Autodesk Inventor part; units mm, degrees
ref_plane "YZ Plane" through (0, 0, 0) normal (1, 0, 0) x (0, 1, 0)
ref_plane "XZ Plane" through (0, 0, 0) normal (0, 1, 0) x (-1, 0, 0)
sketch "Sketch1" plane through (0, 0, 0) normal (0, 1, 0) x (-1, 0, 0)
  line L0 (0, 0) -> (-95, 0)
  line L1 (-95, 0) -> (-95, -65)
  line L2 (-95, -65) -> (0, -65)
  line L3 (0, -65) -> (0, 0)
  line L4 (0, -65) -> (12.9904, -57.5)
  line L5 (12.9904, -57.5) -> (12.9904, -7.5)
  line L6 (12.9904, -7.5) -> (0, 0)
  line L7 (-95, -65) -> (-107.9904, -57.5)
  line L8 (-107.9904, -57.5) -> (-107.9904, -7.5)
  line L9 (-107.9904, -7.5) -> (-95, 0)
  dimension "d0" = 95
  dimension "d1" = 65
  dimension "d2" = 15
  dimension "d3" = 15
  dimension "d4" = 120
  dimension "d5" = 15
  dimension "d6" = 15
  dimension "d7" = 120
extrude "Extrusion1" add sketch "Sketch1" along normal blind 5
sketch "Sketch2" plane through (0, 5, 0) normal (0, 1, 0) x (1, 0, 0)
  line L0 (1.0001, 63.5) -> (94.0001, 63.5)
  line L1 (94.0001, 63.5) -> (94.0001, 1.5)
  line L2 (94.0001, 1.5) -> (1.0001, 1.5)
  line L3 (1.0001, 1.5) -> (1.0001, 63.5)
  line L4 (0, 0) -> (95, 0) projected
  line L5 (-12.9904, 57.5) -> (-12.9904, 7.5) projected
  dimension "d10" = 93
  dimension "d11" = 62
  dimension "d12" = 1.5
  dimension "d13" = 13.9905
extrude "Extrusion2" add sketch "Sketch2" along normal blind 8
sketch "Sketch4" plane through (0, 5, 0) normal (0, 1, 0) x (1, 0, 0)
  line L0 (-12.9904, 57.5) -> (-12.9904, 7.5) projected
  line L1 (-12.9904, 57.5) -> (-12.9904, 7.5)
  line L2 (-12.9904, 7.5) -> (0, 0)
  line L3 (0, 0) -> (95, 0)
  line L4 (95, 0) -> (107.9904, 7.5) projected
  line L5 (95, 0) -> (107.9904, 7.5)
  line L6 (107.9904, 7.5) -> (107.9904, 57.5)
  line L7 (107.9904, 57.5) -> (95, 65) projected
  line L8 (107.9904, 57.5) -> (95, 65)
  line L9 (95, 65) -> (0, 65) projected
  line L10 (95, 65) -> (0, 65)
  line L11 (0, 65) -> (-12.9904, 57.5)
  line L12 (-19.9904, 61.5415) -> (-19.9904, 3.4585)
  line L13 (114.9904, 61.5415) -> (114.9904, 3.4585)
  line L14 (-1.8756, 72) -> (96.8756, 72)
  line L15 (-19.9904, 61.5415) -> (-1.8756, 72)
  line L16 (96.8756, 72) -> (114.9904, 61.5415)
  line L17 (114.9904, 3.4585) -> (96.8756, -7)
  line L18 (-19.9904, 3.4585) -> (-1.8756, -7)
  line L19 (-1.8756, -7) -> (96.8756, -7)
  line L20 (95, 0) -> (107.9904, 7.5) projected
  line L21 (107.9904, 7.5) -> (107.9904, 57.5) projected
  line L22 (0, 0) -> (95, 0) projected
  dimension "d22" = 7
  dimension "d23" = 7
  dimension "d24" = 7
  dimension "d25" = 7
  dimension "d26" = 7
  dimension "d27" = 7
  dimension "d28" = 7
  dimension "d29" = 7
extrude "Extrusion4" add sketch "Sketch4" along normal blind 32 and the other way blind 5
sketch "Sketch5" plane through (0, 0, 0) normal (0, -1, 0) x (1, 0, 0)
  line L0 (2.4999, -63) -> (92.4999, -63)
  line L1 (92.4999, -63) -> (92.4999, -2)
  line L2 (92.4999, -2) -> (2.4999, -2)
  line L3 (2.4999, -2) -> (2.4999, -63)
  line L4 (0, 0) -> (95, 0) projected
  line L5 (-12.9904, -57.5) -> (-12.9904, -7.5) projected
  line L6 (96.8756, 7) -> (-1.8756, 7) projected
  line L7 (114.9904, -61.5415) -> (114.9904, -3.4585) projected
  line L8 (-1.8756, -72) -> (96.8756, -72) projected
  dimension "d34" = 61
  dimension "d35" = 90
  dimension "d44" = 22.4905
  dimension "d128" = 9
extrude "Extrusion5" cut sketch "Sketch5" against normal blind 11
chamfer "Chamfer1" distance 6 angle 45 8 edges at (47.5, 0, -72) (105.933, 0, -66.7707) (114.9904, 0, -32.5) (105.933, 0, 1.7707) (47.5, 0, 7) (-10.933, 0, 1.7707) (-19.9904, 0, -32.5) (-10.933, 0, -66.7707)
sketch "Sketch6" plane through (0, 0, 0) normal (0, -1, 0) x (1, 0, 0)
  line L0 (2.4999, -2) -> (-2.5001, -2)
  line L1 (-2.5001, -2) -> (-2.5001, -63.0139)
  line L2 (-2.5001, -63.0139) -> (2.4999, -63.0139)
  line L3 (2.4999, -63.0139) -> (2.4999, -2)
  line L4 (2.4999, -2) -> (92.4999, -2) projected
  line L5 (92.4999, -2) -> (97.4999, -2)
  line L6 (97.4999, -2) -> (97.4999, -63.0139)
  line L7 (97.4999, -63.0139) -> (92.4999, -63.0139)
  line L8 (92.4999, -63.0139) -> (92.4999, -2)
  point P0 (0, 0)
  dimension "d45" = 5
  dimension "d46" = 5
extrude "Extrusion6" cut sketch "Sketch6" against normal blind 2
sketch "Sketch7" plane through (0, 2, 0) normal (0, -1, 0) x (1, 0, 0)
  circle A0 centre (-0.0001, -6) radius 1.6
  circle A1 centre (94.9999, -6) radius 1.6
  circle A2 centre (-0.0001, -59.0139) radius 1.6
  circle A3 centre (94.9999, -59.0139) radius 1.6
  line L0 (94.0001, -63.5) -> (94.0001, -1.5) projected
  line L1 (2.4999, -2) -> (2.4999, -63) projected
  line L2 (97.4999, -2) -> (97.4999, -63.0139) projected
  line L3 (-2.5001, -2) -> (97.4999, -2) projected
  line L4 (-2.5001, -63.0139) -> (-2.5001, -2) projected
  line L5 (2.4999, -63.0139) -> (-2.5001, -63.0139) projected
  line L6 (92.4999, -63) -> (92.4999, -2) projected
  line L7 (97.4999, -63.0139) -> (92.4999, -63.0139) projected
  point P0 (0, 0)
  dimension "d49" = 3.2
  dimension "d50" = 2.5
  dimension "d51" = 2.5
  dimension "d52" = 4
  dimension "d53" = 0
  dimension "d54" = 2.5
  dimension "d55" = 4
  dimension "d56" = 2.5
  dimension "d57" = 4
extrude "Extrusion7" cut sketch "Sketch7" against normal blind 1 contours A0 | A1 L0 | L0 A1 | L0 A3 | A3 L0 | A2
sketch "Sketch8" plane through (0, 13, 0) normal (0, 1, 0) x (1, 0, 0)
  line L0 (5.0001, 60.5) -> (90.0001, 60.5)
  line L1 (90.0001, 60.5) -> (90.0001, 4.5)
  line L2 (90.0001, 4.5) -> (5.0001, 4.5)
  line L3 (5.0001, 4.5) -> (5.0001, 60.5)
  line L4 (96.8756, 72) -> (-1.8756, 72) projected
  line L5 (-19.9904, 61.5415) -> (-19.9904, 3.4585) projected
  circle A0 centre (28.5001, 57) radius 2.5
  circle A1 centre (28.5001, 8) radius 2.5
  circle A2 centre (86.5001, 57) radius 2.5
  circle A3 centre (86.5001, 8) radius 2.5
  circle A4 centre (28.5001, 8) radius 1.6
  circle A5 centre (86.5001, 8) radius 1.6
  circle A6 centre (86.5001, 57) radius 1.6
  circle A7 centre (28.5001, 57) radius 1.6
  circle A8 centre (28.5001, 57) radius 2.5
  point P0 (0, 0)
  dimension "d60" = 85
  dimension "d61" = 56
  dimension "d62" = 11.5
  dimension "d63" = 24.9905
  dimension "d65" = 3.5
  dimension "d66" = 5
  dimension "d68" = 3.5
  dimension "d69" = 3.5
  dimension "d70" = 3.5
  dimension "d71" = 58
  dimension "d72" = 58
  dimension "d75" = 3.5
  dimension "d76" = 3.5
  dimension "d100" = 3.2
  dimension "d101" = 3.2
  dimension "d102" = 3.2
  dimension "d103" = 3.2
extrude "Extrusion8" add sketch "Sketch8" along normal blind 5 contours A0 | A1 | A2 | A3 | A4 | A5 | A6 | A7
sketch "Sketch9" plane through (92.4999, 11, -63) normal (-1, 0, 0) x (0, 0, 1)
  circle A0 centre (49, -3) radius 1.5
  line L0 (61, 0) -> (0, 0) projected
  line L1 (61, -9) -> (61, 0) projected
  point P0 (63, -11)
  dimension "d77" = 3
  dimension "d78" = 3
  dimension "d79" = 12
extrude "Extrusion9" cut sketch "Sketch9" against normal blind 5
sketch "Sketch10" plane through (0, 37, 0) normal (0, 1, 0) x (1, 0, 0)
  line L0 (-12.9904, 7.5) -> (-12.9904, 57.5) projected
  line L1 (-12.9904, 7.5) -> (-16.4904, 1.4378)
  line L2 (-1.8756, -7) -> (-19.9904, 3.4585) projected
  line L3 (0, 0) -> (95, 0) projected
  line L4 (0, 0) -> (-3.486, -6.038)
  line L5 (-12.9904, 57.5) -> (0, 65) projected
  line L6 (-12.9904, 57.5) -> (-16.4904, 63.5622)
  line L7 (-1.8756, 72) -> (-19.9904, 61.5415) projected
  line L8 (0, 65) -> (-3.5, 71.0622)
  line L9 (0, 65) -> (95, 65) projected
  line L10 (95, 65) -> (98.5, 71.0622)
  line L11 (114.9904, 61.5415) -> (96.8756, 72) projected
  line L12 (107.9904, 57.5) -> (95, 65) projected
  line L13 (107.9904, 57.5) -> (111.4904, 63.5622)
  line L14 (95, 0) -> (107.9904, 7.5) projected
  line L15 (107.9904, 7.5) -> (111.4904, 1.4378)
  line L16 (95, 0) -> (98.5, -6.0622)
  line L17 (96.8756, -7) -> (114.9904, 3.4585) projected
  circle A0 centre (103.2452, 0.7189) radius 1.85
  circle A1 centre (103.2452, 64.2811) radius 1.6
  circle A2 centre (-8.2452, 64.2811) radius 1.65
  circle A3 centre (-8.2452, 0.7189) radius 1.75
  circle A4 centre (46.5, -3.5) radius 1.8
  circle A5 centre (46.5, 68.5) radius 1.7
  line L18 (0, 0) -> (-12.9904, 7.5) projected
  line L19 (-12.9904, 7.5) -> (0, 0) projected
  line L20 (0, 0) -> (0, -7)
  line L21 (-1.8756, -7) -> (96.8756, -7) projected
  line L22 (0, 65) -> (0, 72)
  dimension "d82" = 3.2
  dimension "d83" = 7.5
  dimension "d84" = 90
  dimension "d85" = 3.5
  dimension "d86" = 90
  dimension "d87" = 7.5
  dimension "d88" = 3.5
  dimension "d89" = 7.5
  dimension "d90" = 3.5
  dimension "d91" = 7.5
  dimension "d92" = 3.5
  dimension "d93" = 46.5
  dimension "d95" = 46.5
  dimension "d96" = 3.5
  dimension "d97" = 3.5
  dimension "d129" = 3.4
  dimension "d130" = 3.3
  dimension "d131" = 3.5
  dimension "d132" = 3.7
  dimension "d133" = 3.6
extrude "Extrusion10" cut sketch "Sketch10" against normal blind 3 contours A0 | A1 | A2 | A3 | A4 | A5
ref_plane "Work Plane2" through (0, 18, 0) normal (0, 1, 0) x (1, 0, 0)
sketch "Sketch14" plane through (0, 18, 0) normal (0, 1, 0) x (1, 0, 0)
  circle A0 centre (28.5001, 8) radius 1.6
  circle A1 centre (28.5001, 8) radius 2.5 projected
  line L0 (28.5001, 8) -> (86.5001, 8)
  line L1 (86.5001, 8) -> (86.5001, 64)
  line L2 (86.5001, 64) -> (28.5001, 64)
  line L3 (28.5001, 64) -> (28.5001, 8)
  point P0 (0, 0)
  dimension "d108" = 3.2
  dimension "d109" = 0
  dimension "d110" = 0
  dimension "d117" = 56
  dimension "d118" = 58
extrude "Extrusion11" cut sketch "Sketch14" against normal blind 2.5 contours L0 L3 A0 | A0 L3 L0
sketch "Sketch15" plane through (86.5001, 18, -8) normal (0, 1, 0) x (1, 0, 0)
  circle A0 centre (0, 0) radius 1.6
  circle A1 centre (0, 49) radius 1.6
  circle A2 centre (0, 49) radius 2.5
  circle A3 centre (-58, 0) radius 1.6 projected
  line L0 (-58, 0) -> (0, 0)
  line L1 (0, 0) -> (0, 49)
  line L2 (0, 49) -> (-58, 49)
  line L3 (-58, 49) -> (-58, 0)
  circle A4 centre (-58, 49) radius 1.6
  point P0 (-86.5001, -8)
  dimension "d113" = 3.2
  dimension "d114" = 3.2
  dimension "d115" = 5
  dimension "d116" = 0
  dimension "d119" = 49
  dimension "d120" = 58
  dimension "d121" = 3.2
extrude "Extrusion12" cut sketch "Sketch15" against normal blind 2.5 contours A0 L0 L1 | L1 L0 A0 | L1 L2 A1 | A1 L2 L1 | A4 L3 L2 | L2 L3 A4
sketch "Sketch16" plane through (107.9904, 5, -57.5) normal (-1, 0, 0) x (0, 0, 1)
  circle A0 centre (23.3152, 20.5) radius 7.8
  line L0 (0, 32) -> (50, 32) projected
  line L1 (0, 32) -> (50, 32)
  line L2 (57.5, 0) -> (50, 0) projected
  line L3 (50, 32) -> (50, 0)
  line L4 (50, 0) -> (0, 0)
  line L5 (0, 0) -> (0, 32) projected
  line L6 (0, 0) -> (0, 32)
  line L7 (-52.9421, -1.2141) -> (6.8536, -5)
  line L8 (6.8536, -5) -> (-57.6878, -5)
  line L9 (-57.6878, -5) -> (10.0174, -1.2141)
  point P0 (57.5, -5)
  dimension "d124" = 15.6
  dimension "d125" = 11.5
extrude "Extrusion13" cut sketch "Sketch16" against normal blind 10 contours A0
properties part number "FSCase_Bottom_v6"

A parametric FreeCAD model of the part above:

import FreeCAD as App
import Part
import Sketcher
from FreeCAD import Vector
Q = App.Units.Quantity


def edges_at(feature, points):
    """Names of the edges that pass closest to the given points."""
    edges = feature.Shape.Edges
    near = lambda p: min(range(len(edges)), key=lambda i: edges[i].distToShape(Part.Vertex(*p))[0])
    return sorted({f"Edge{near(p) + 1}" for p in points})

doc = App.newDocument("Part")
params = doc.addObject("Spreadsheet::Sheet", "Params")
for row, (alias, value) in enumerate([
    ("sketch1_width", "95 mm"),
    ("sketch1_length", "15 mm"),
    ("sketch1_height", "50 mm"),
    ("pad1_length", "5 mm"),
    ("sketch2_width", "93 mm"),
    ("sketch2_height", "62 mm"),
    ("pad2_length", "8 mm"),
    ("sketch3_width", "95 mm"),
    ("sketch3_height", "50 mm"),
    ("sketch3_length", "15 mm"),
    ("pad3_length", "32 mm"),
    ("pad3_length2", "5 mm"),
    ("sketch4_width", "90 mm"),
    ("sketch4_height", "61 mm"),
    ("pocket1_length", "11 mm"),
    ("chamfer_size", "6 mm"),
    ("sketch5_width", "5 mm"),
    ("pocket2_length", "2 mm"),
    ("sketch6_diameter", "3.2 mm"),
    ("pocket3_length", "1 mm"),
    ("sketch7_diameter", "5 mm"),
    ("pad4_length", "5 mm"),
    ("sketch8_diameter", "3 mm"),
    ("pocket4_length", "5 mm"),
    ("sketch9_diameter", "3.7 mm"),
    ("sketch9_diameter2", "3.2 mm"),
    ("sketch9_diameter3", "3.3 mm"),
    ("sketch9_diameter4", "3.5 mm"),
    ("sketch9_diameter5", "3.6 mm"),
    ("pocket5_length", "3 mm"),
    ("sketch10_diameter", "3.2 mm"),
    ("pocket6_length", "2.5 mm"),
    ("sketch11_diameter", "3.2 mm"),
    ("pocket7_length", "2.5 mm"),
    ("sketch12_diameter", "15.6 mm"),
    ("pocket8_length", "10 mm"),
], start=1):
    params.set(f"A{row}", alias)
    params.set(f"B{row}", "=" + value)
    params.setAlias(f"B{row}", alias)

body = doc.addObject("PartDesign::Body", "Body")

# Sketch on XZ plane
sketch1 = body.newObject("Sketcher::SketchObject", "Sketch")
sketch1.AttachmentSupport = (doc.getObject("XZ_Plane"), [""])
sketch1.MapMode = "FlatFace"
sketch1.addGeometry(Part.LineSegment(Vector(95, -65, 0), Vector(0, -65, 0)), False)
sketch1.addGeometry(Part.LineSegment(Vector(0, -65, 0), Vector(-13, -58, 0)), False)
sketch1.addGeometry(Part.LineSegment(Vector(-13, -58, 0), Vector(-13, -8, 0)), False)
sketch1.addGeometry(Part.LineSegment(Vector(-13, -8, 0), Vector(0, 0, 0)), False)
sketch1.addGeometry(Part.LineSegment(Vector(0, 0, 0), Vector(95, 0, 0)), False)
sketch1.addGeometry(Part.LineSegment(Vector(95, 0, 0), Vector(108, -8, 0)), False)
sketch1.addGeometry(Part.LineSegment(Vector(108, -8, 0), Vector(108, -58, 0)), False)
sketch1.addGeometry(Part.LineSegment(Vector(108, -58, 0), Vector(95, -65, 0)), False)
sketch1.addConstraint(Sketcher.Constraint("Coincident", 0, 2, 1, 1))
sketch1.addConstraint(Sketcher.Constraint("Coincident", 1, 2, 2, 1))
sketch1.addConstraint(Sketcher.Constraint("Coincident", 2, 2, 3, 1))
sketch1.addConstraint(Sketcher.Constraint("Coincident", 3, 2, 4, 1))
sketch1.addConstraint(Sketcher.Constraint("Coincident", 4, 2, 5, 1))
sketch1.addConstraint(Sketcher.Constraint("Coincident", 5, 2, 6, 1))
sketch1.addConstraint(Sketcher.Constraint("Coincident", 6, 2, 7, 1))
sketch1.addConstraint(Sketcher.Constraint("Coincident", 7, 2, 0, 1))
sketch1.addConstraint(Sketcher.Constraint("Horizontal", 0))
sketch1.addConstraint(Sketcher.Constraint("Vertical", 2))
sketch1.addConstraint(Sketcher.Constraint("Horizontal", 4))
sketch1.addConstraint(Sketcher.Constraint("Vertical", 6))
sketch1.addConstraint(Sketcher.Constraint("Coincident", 3, 2, -1, 1))
sketch1.addConstraint(Sketcher.Constraint("PointOnObject", 0, 2, -2))
sketch1.addConstraint(Sketcher.Constraint("Parallel", 1, 5))
sketch1.addConstraint(Sketcher.Constraint("Parallel", 3, 7))
sketch1.addConstraint(Sketcher.Constraint("Horizontal", 2, 2, 5, 2))
sketch1.addConstraint(Sketcher.Constraint("Horizontal", 1, 2, 6, 2))
sketch1.addConstraint(Sketcher.Constraint("Vertical", 4, 2, 7, 2))
sketch1.addConstraint(Sketcher.Constraint("DistanceX", 0, 2, 0, 1, 95.0))
sketch1.addConstraint(Sketcher.Constraint("Distance", 1, 15.0))
sketch1.addConstraint(Sketcher.Constraint("DistanceY", 0, 2, -1, 1, 65.0))
sketch1.addConstraint(Sketcher.Constraint("DistanceY", 2, 1, 2, 2, 50.0))
sketch1.setExpression("Constraints[19]", "Params.sketch1_width")
sketch1.setExpression("Constraints[20]", "Params.sketch1_length")
sketch1.setExpression("Constraints[22]", "Params.sketch1_height")
pad1 = body.newObject("PartDesign::Pad", "Pad")
pad1.Profile = sketch1
pad1.setExpression("Length", "Params.pad1_length")
pad1.Reversed = True

# Sketch on XZ plane
sketch2 = body.newObject("Sketcher::SketchObject", "Sketch001")
sketch2.AttachmentSupport = (doc.getObject("XZ_Plane"), [""])
sketch2.MapMode = "FlatFace"
sketch2.AttachmentOffset = App.Placement(Vector(0, 0, -5), App.Rotation())
sketch2.addGeometry(Part.LineSegment(Vector(94, -64, 0), Vector(1, -64, 0)), False)
sketch2.addGeometry(Part.LineSegment(Vector(1, -64, 0), Vector(1, -2, 0)), False)
sketch2.addGeometry(Part.LineSegment(Vector(1, -2, 0), Vector(94, -2, 0)), False)
sketch2.addGeometry(Part.LineSegment(Vector(94, -2, 0), Vector(94, -64, 0)), False)
sketch2.addConstraint(Sketcher.Constraint("Coincident", 0, 2, 1, 1))
sketch2.addConstraint(Sketcher.Constraint("Coincident", 1, 2, 2, 1))
sketch2.addConstraint(Sketcher.Constraint("Coincident", 2, 2, 3, 1))
sketch2.addConstraint(Sketcher.Constraint("Coincident", 3, 2, 0, 1))
sketch2.addConstraint(Sketcher.Constraint("Horizontal", 0))
sketch2.addConstraint(Sketcher.Constraint("Vertical", 1))
sketch2.addConstraint(Sketcher.Constraint("Horizontal", 2))
sketch2.addConstraint(Sketcher.Constraint("Vertical", 3))
sketch2.addConstraint(Sketcher.Constraint("DistanceX", 0, 2, 0, 1, 93.0))
sketch2.addConstraint(Sketcher.Constraint("DistanceY", 1, 1, 1, 2, 62.0))
sketch2.addConstraint(Sketcher.Constraint("DistanceY", 1, 2, -1, 1, 1.5))
sketch2.addConstraint(Sketcher.Constraint("DistanceX", -1, 1, 0, 2, 1.0))
sketch2.setExpression("Constraints[8]", "Params.sketch2_width")
sketch2.setExpression("Constraints[9]", "Params.sketch2_height")
pad2 = body.newObject("PartDesign::Pad", "Pad001")
pad2.Profile = sketch2
pad2.setExpression("Length", "Params.pad2_length")
pad2.Reversed = True

# Sketch on XZ plane
sketch3 = body.newObject("Sketcher::SketchObject", "Sketch002")
sketch3.AttachmentSupport = (doc.getObject("XZ_Plane"), [""])
sketch3.MapMode = "FlatFace"
sketch3.AttachmentOffset = App.Placement(Vector(0, 0, -5), App.Rotation())
sketch3.addGeometry(Part.LineSegment(Vector(-2, -72, 0), Vector(-20, -62, 0)), False)
sketch3.addGeometry(Part.LineSegment(Vector(-20, -62, 0), Vector(-20, -3, 0)), False)
sketch3.addGeometry(Part.LineSegment(Vector(-20, -3, 0), Vector(-2, 7, 0)), False)
sketch3.addGeometry(Part.LineSegment(Vector(-2, 7, 0), Vector(97, 7, 0)), False)
sketch3.addGeometry(Part.LineSegment(Vector(97, 7, 0), Vector(115, -3, 0)), False)
sketch3.addGeometry(Part.LineSegment(Vector(115, -3, 0), Vector(115, -62, 0)), False)
sketch3.addGeometry(Part.LineSegment(Vector(115, -62, 0), Vector(97, -72, 0)), False)
sketch3.addGeometry(Part.LineSegment(Vector(97, -72, 0), Vector(-2, -72, 0)), False)
sketch3.addGeometry(Part.LineSegment(Vector(-13, -8, 0), Vector(-13, -58, 0)), False)
sketch3.addGeometry(Part.LineSegment(Vector(-13, -58, 0), Vector(0, -65, 0)), False)
sketch3.addGeometry(Part.LineSegment(Vector(0, -65, 0), Vector(95, -65, 0)), False)
sketch3.addGeometry(Part.LineSegment(Vector(95, -65, 0), Vector(108, -58, 0)), False)
sketch3.addGeometry(Part.LineSegment(Vector(108, -58, 0), Vector(108, -8, 0)), False)
sketch3.addGeometry(Part.LineSegment(Vector(108, -8, 0), Vector(95, 0, 0)), False)
sketch3.addGeometry(Part.LineSegment(Vector(95, 0, 0), Vector(0, 0, 0)), False)
sketch3.addGeometry(Part.LineSegment(Vector(0, 0, 0), Vector(-13, -8, 0)), False)
sketch3.addConstraint(Sketcher.Constraint("Coincident", 0, 2, 1, 1))
sketch3.addConstraint(Sketcher.Constraint("Coincident", 1, 2, 2, 1))
sketch3.addConstraint(Sketcher.Constraint("Coincident", 2, 2, 3, 1))
sketch3.addConstraint(Sketcher.Constraint("Coincident", 3, 2, 4, 1))
sketch3.addConstraint(Sketcher.Constraint("Coincident", 4, 2, 5, 1))
sketch3.addConstraint(Sketcher.Constraint("Coincident", 5, 2, 6, 1))
sketch3.addConstraint(Sketcher.Constraint("Coincident", 6, 2, 7, 1))
sketch3.addConstraint(Sketcher.Constraint("Coincident", 7, 2, 0, 1))
sketch3.addConstraint(Sketcher.Constraint("Coincident", 8, 2, 9, 1))
sketch3.addConstraint(Sketcher.Constraint("Coincident", 9, 2, 10, 1))
sketch3.addConstraint(Sketcher.Constraint("Coincident", 10, 2, 11, 1))
sketch3.addConstraint(Sketcher.Constraint("Coincident", 11, 2, 12, 1))
sketch3.addConstraint(Sketcher.Constraint("Coincident", 12, 2, 13, 1))
sketch3.addConstraint(Sketcher.Constraint("Coincident", 13, 2, 14, 1))
sketch3.addConstraint(Sketcher.Constraint("Coincident", 14, 2, 15, 1))
sketch3.addConstraint(Sketcher.Constraint("Coincident", 15, 2, 8, 1))
sketch3.addConstraint(Sketcher.Constraint("Vertical", 1))
sketch3.addConstraint(Sketcher.Constraint("Horizontal", 3))
sketch3.addConstraint(Sketcher.Constraint("Vertical", 5))
sketch3.addConstraint(Sketcher.Constraint("Horizontal", 7))
sketch3.addConstraint(Sketcher.Constraint("Vertical", 8))
sketch3.addConstraint(Sketcher.Constraint("Horizontal", 10))
sketch3.addConstraint(Sketcher.Constraint("Vertical", 12))
sketch3.addConstraint(Sketcher.Constraint("Horizontal", 14))
sketch3.addConstraint(Sketcher.Constraint("Coincident", 14, 2, -1, 1))
sketch3.addConstraint(Sketcher.Constraint("PointOnObject", 9, 2, -2))
sketch3.addConstraint(Sketcher.Constraint("Parallel", 0, 4))
sketch3.addConstraint(Sketcher.Constraint("Parallel", 2, 6))
sketch3.addConstraint(Sketcher.Constraint("Parallel", 4, 9))
sketch3.addConstraint(Sketcher.Constraint("Parallel", 6, 11))
sketch3.addConstraint(Sketcher.Constraint("Parallel", 9, 13))
sketch3.addConstraint(Sketcher.Constraint("Parallel", 11, 15))
sketch3.addConstraint(Sketcher.Constraint("Horizontal", 1, 2, 4, 2))
sketch3.addConstraint(Sketcher.Constraint("Horizontal", 0, 2, 5, 2))
sketch3.addConstraint(Sketcher.Constraint("Horizontal", 8, 2, 11, 2))
sketch3.addConstraint(Sketcher.Constraint("Horizontal", 12, 2, 15, 2))
sketch3.addConstraint(Sketcher.Constraint("Vertical", 3, 2, 6, 2))
sketch3.addConstraint(Sketcher.Constraint("Vertical", 2, 2, 7, 2))
sketch3.addConstraint(Sketcher.Constraint("DistanceY", -1, 1, 2, 2, 7.0))
sketch3.addConstraint(Sketcher.Constraint("DistanceX", 0, 2, 8, 2, 7.0))
sketch3.addConstraint(Sketcher.Constraint("DistanceY", 7, 2, 9, 2, 7.0))
sketch3.addConstraint(Sketcher.Constraint("DistanceX", 11, 2, 5, 2, 7.0))
sketch3.addConstraint(Sketcher.Constraint("DistanceX", 10, 1, 10, 2, 95.0))
sketch3.addConstraint(Sketcher.Constraint("DistanceY", 8, 2, 8, 1, 50.0))
sketch3.addConstraint(Sketcher.Constraint("Angle", 0, Q("150.0002 deg")))
sketch3.addConstraint(Sketcher.Constraint("Distance", 9, 15.0))
sketch3.addConstraint(Sketcher.Constraint("DistanceY", 1, 1, 1, 2, 58.083))
sketch3.setExpression("Constraints[42]", "Params.sketch3_width")
sketch3.setExpression("Constraints[43]", "Params.sketch3_height")
sketch3.setExpression("Constraints[45]", "Params.sketch3_length")
pad3 = body.newObject("PartDesign::Pad", "Pad002")
pad3.Profile = sketch3
pad3.Type = "TwoLengths"
pad3.setExpression("Length", "Params.pad3_length")
pad3.setExpression("Length2", "Params.pad3_length2")
pad3.Reversed = True

# Sketch on XZ plane
sketch4 = body.newObject("Sketcher::SketchObject", "Sketch003")
sketch4.AttachmentSupport = (doc.getObject("XZ_Plane"), [""])
sketch4.MapMode = "FlatFace"
sketch4.addGeometry(Part.LineSegment(Vector(2, -2, 0), Vector(2, -63, 0)), False)
sketch4.addGeometry(Part.LineSegment(Vector(2, -63, 0), Vector(92, -63, 0)), False)
sketch4.addGeometry(Part.LineSegment(Vector(92, -63, 0), Vector(92, -2, 0)), False)
sketch4.addGeometry(Part.LineSegment(Vector(92, -2, 0), Vector(2, -2, 0)), False)
sketch4.addConstraint(Sketcher.Constraint("Coincident", 0, 2, 1, 1))
sketch4.addConstraint(Sketcher.Constraint("Coincident", 1, 2, 2, 1))
sketch4.addConstraint(Sketcher.Constraint("Coincident", 2, 2, 3, 1))
sketch4.addConstraint(Sketcher.Constraint("Coincident", 3, 2, 0, 1))
sketch4.addConstraint(Sketcher.Constraint("Vertical", 0))
sketch4.addConstraint(Sketcher.Constraint("Horizontal", 1))
sketch4.addConstraint(Sketcher.Constraint("Vertical", 2))
sketch4.addConstraint(Sketcher.Constraint("Horizontal", 3))
sketch4.addConstraint(Sketcher.Constraint("DistanceX", 1, 1, 1, 2, 90.0))
sketch4.addConstraint(Sketcher.Constraint("DistanceY", 0, 2, 0, 1, 61.0))
sketch4.addConstraint(Sketcher.Constraint("DistanceY", 0, 2, -1, 1, 63.0))
sketch4.addConstraint(Sketcher.Constraint("DistanceX", -1, 1, 0, 2, 2.5))
sketch4.setExpression("Constraints[8]", "Params.sketch4_width")
sketch4.setExpression("Constraints[9]", "Params.sketch4_height")
pocket1 = body.newObject("PartDesign::Pocket", "Pocket")
pocket1.Profile = sketch4
pocket1.setExpression("Length", "Params.pocket1_length")
doc.recompute()

chamfer = body.newObject("PartDesign::Chamfer", "Chamfer")
chamfer.Base = (pocket1, edges_at(pocket1, [
    (47.5, 0, -72),
    (105.933, 0, -66.771),
    (114.99, 0, -32.5),
    (105.933, 0, 1.771),
    (47.5, 0, 7),
    (-10.933, 0, 1.771),
    (-19.99, 0, -32.5),
    (-10.933, 0, -66.771),
]))
chamfer.setExpression("Size", "Params.chamfer_size")

# Sketch on XZ plane
sketch5 = body.newObject("Sketcher::SketchObject", "Sketch004")
sketch5.AttachmentSupport = (doc.getObject("XZ_Plane"), [""])
sketch5.MapMode = "FlatFace"
sketch5.addGeometry(Part.LineSegment(Vector(2, -63, 0), Vector(2, -2, 0)), False)
sketch5.addGeometry(Part.LineSegment(Vector(2, -2, 0), Vector(-3, -2, 0)), False)
sketch5.addGeometry(Part.LineSegment(Vector(-3, -2, 0), Vector(-3, -63, 0)), False)
sketch5.addGeometry(Part.LineSegment(Vector(-3, -63, 0), Vector(2, -63, 0)), False)
sketch5.addGeometry(Part.LineSegment(Vector(97, -2, 0), Vector(92, -2, 0)), False)
sketch5.addGeometry(Part.LineSegment(Vector(92, -2, 0), Vector(92, -63, 0)), False)
sketch5.addGeometry(Part.LineSegment(Vector(92, -63, 0), Vector(97, -63, 0)), False)
sketch5.addGeometry(Part.LineSegment(Vector(97, -63, 0), Vector(97, -2, 0)), False)
sketch5.addConstraint(Sketcher.Constraint("Coincident", 0, 2, 1, 1))
sketch5.addConstraint(Sketcher.Constraint("Coincident", 1, 2, 2, 1))
sketch5.addConstraint(Sketcher.Constraint("Coincident", 2, 2, 3, 1))
sketch5.addConstraint(Sketcher.Constraint("Coincident", 3, 2, 0, 1))
sketch5.addConstraint(Sketcher.Constraint("Coincident", 4, 2, 5, 1))
sketch5.addConstraint(Sketcher.Constraint("Coincident", 5, 2, 6, 1))
sketch5.addConstraint(Sketcher.Constraint("Coincident", 6, 2, 7, 1))
sketch5.addConstraint(Sketcher.Constraint("Coincident", 7, 2, 4, 1))
sketch5.addConstraint(Sketcher.Constraint("Vertical", 0))
sketch5.addConstraint(Sketcher.Constraint("Horizontal", 1))
sketch5.addConstraint(Sketcher.Constraint("Vertical", 2))
sketch5.addConstraint(Sketcher.Constraint("Horizontal", 3))
sketch5.addConstraint(Sketcher.Constraint("Horizontal", 4))
sketch5.addConstraint(Sketcher.Constraint("Vertical", 5))
sketch5.addConstraint(Sketcher.Constraint("Horizontal", 6))
sketch5.addConstraint(Sketcher.Constraint("Vertical", 7))
sketch5.addConstraint(Sketcher.Constraint("Horizontal", 1, 2, 4, 2))
sketch5.addConstraint(Sketcher.Constraint("Horizontal", 3, 2, 5, 2))
sketch5.addConstraint(Sketcher.Constraint("Equal", 3, 4))
sketch5.addConstraint(Sketcher.Constraint("DistanceX", 1, 2, 1, 1, 5.0))
sketch5.addConstraint(Sketcher.Constraint("DistanceY", 0, 2, -1, 1, 2.0))
sketch5.addConstraint(Sketcher.Constraint("DistanceX", 0, 2, 4, 2, 90.0))
sketch5.addConstraint(Sketcher.Constraint("DistanceX", -1, 1, 0, 2, 2.5))
sketch5.addConstraint(Sketcher.Constraint("DistanceY", 0, 1, 0, 2, 61.014))
sketch5.setExpression("Constraints[19]", "Params.sketch5_width")
pocket2 = body.newObject("PartDesign::Pocket", "Pocket001")
pocket2.Profile = sketch5
pocket2.setExpression("Length", "Params.pocket2_length")

# Sketch on XZ plane
sketch6 = body.newObject("Sketcher::SketchObject", "Sketch005")
sketch6.AttachmentSupport = (doc.getObject("XZ_Plane"), [""])
sketch6.MapMode = "FlatFace"
sketch6.AttachmentOffset = App.Placement(Vector(0, 0, -2), App.Rotation())
sketch6.addGeometry(Part.Circle(Vector(0, -6, 0), Vector(0, 0, 1), 1.6), False)
sketch6.addGeometry(Part.Circle(Vector(95, -6, 0), Vector(0, 0, 1), 1.6), False)
sketch6.addGeometry(Part.Circle(Vector(95, -59, 0), Vector(0, 0, 1), 1.6), False)
sketch6.addGeometry(Part.Circle(Vector(0, -59, 0), Vector(0, 0, 1), 1.6), False)
sketch6.addConstraint(Sketcher.Constraint("Equal", 0, 1))
sketch6.addConstraint(Sketcher.Constraint("Equal", 1, 2))
sketch6.addConstraint(Sketcher.Constraint("Equal", 2, 3))
sketch6.addConstraint(Sketcher.Constraint("PointOnObject", 0, 3, -2))
sketch6.addConstraint(Sketcher.Constraint("PointOnObject", 3, 3, -2))
sketch6.addConstraint(Sketcher.Constraint("Horizontal", 0, 3, 1, 3))
sketch6.addConstraint(Sketcher.Constraint("Horizontal", 2, 3, 3, 3))
sketch6.addConstraint(Sketcher.Constraint("Vertical", 1, 3, 2, 3))
sketch6.addConstraint(Sketcher.Constraint("Diameter", 0, 3.2))
sketch6.addConstraint(Sketcher.Constraint("DistanceY", 0, 3, -1, 1, 6.0))
sketch6.addConstraint(Sketcher.Constraint("DistanceX", -1, 1, 1, 3, 95.0))
sketch6.addConstraint(Sketcher.Constraint("DistanceY", 2, 3, -1, 1, 59.014))
sketch6.setExpression("Constraints[8]", "Params.sketch6_diameter")
pocket3 = body.newObject("PartDesign::Pocket", "Pocket002")
pocket3.Profile = sketch6
pocket3.setExpression("Length", "Params.pocket3_length")

# Sketch on XZ plane
sketch7 = body.newObject("Sketcher::SketchObject", "Sketch006")
sketch7.AttachmentSupport = (doc.getObject("XZ_Plane"), [""])
sketch7.MapMode = "FlatFace"
sketch7.AttachmentOffset = App.Placement(Vector(0, 0, -13), App.Rotation())
sketch7.addGeometry(Part.Circle(Vector(28.5, -57, 0), Vector(0, 0, 1), 2.5), False)
sketch7.addGeometry(Part.Circle(Vector(28.5, -8, 0), Vector(0, 0, 1), 2.5), False)
sketch7.addGeometry(Part.Circle(Vector(86.5, -57, 0), Vector(0, 0, 1), 2.5), False)
sketch7.addGeometry(Part.Circle(Vector(86.5, -8, 0), Vector(0, 0, 1), 2.5), False)
sketch7.addConstraint(Sketcher.Constraint("Equal", 0, 1))
sketch7.addConstraint(Sketcher.Constraint("Equal", 1, 2))
sketch7.addConstraint(Sketcher.Constraint("Equal", 2, 3))
sketch7.addConstraint(Sketcher.Constraint("Horizontal", 0, 3, 2, 3))
sketch7.addConstraint(Sketcher.Constraint("Horizontal", 1, 3, 3, 3))
sketch7.addConstraint(Sketcher.Constraint("Vertical", 0, 3, 1, 3))
sketch7.addConstraint(Sketcher.Constraint("Vertical", 2, 3, 3, 3))
sketch7.addConstraint(Sketcher.Constraint("Diameter", 0, 5.0))
sketch7.addConstraint(Sketcher.Constraint("DistanceX", 0, 3, 2, 3, 58.0))
sketch7.addConstraint(Sketcher.Constraint("DistanceY", 0, 3, -1, 1, 57.0))
sketch7.addConstraint(Sketcher.Constraint("DistanceY", 1, 3, -1, 1, 8.0))
sketch7.addConstraint(Sketcher.Constraint("DistanceX", -1, 1, 0, 3, 28.5))
sketch7.setExpression("Constraints[7]", "Params.sketch7_diameter")
pad4 = body.newObject("PartDesign::Pad", "Pad003")
pad4.Profile = sketch7
pad4.setExpression("Length", "Params.pad4_length")
pad4.Reversed = True

# Sketch on YZ plane
sketch8 = body.newObject("Sketcher::SketchObject", "Sketch007")
sketch8.AttachmentSupport = (doc.getObject("YZ_Plane"), [""])
sketch8.MapMode = "FlatFace"
sketch8.AttachmentOffset = App.Placement(Vector(0, 0, 92.4999), App.Rotation())
sketch8.addGeometry(Part.Circle(Vector(8, -14, 0), Vector(0, 0, 1), 1.5), False)
sketch8.addConstraint(Sketcher.Constraint("Diameter", 0, 3.0))
sketch8.addConstraint(Sketcher.Constraint("DistanceX", -1, 1, 0, 3, 8.0))
sketch8.addConstraint(Sketcher.Constraint("DistanceY", 0, 3, -1, 1, 14.0))
sketch8.setExpression("Constraints[0]", "Params.sketch8_diameter")
pocket4 = body.newObject("PartDesign::Pocket", "Pocket003")
pocket4.Profile = sketch8
pocket4.setExpression("Length", "Params.pocket4_length")
pocket4.Reversed = True

# Sketch on XZ plane
sketch9 = body.newObject("Sketcher::SketchObject", "Sketch008")
sketch9.AttachmentSupport = (doc.getObject("XZ_Plane"), [""])
sketch9.MapMode = "FlatFace"
sketch9.AttachmentOffset = App.Placement(Vector(0, 0, -37), App.Rotation())
sketch9.addGeometry(Part.Circle(Vector(103.2, -0.7, 0), Vector(0, 0, 1), 1.9), False)
sketch9.addGeometry(Part.Circle(Vector(103.2, -64.3, 0), Vector(0, 0, 1), 1.6), False)
sketch9.addGeometry(Part.Circle(Vector(-8.2, -64.3, 0), Vector(0, 0, 1), 1.6), False)
sketch9.addGeometry(Part.Circle(Vector(-8.2, -0.7, 0), Vector(0, 0, 1), 1.8), False)
sketch9.addGeometry(Part.Circle(Vector(46.5, 3.5, 0), Vector(0, 0, 1), 1.8), False)
sketch9.addGeometry(Part.Circle(Vector(46.5, -68.5, 0), Vector(0, 0, 1), 1.7), False)
sketch9.addConstraint(Sketcher.Constraint("Horizontal", 1, 3, 2, 3))
sketch9.addConstraint(Sketcher.Constraint("Horizontal", 0, 3, 3, 3))
sketch9.addConstraint(Sketcher.Constraint("Vertical", 0, 3, 1, 3))
sketch9.addConstraint(Sketcher.Constraint("Vertical", 2, 3, 3, 3))
sketch9.addConstraint(Sketcher.Constraint("Vertical", 4, 3, 5, 3))
sketch9.addConstraint(Sketcher.Constraint("Diameter", 0, 3.7))
sketch9.addConstraint(Sketcher.Constraint("Diameter", 1, 3.2))
sketch9.addConstraint(Sketcher.Constraint("Diameter", 2, 3.3))
sketch9.addConstraint(Sketcher.Constraint("Diameter", 3, 3.5))
sketch9.addConstraint(Sketcher.Constraint("Diameter", 4, 3.6))
sketch9.addConstraint(Sketcher.Constraint("Diameter", 5, 3.4))
sketch9.addConstraint(Sketcher.Constraint("DistanceX", -1, 1, 4, 3, 46.5))
sketch9.addConstraint(Sketcher.Constraint("DistanceY", -1, 1, 4, 3, 3.5))
sketch9.addConstraint(Sketcher.Constraint("DistanceY", 5, 3, 4, 3, 72.0))
sketch9.addConstraint(Sketcher.Constraint("DistanceY", 0, 3, -1, 1, 0.719))
sketch9.addConstraint(Sketcher.Constraint("DistanceY", 1, 3, -1, 1, 64.281))
sketch9.addConstraint(Sketcher.Constraint("DistanceX", -1, 1, 0, 3, 103.2452))
sketch9.addConstraint(Sketcher.Constraint("DistanceX", 2, 3, -1, 1, 8.2452))
sketch9.setExpression("Constraints[5]", "Params.sketch9_diameter")
sketch9.setExpression("Constraints[6]", "Params.sketch9_diameter2")
sketch9.setExpression("Constraints[7]", "Params.sketch9_diameter3")
sketch9.setExpression("Constraints[8]", "Params.sketch9_diameter4")
sketch9.setExpression("Constraints[9]", "Params.sketch9_diameter5")
pocket5 = body.newObject("PartDesign::Pocket", "Pocket004")
pocket5.Profile = sketch9
pocket5.setExpression("Length", "Params.pocket5_length")
pocket5.Reversed = True

# Sketch on XZ plane
sketch10 = body.newObject("Sketcher::SketchObject", "Sketch009")
sketch10.AttachmentSupport = (doc.getObject("XZ_Plane"), [""])
sketch10.MapMode = "FlatFace"
sketch10.AttachmentOffset = App.Placement(Vector(0, 0, -18), App.Rotation())
sketch10.addGeometry(Part.Circle(Vector(28.5, -8, 0), Vector(0, 0, 1), 1.6), False)
sketch10.addConstraint(Sketcher.Constraint("Diameter", 0, 3.2))
sketch10.addConstraint(Sketcher.Constraint("DistanceY", 0, 3, -1, 1, 8.0))
sketch10.addConstraint(Sketcher.Constraint("DistanceX", -1, 1, 0, 3, 28.5))
sketch10.setExpression("Constraints[0]", "Params.sketch10_diameter")
pocket6 = body.newObject("PartDesign::Pocket", "Pocket005")
pocket6.Profile = sketch10
pocket6.setExpression("Length", "Params.pocket6_length")
pocket6.Reversed = True

# Sketch on XZ plane
sketch11 = body.newObject("Sketcher::SketchObject", "Sketch010")
sketch11.AttachmentSupport = (doc.getObject("XZ_Plane"), [""])
sketch11.MapMode = "FlatFace"
sketch11.AttachmentOffset = App.Placement(Vector(0, 0, -18), App.Rotation())
sketch11.addGeometry(Part.Circle(Vector(86.5, -8, 0), Vector(0, 0, 1), 1.6), False)
sketch11.addGeometry(Part.Circle(Vector(86.5, -57, 0), Vector(0, 0, 1), 1.6), False)
sketch11.addGeometry(Part.Circle(Vector(28.5, -57, 0), Vector(0, 0, 1), 1.6), False)
sketch11.addConstraint(Sketcher.Constraint("Equal", 0, 1))
sketch11.addConstraint(Sketcher.Constraint("Equal", 1, 2))
sketch11.addConstraint(Sketcher.Constraint("Horizontal", 1, 3, 2, 3))
sketch11.addConstraint(Sketcher.Constraint("Vertical", 0, 3, 1, 3))
sketch11.addConstraint(Sketcher.Constraint("Diameter", 0, 3.2))
sketch11.addConstraint(Sketcher.Constraint("DistanceY", 1, 3, 0, 3, 49.0))
sketch11.addConstraint(Sketcher.Constraint("DistanceX", 2, 3, 1, 3, 58.0))
sketch11.addConstraint(Sketcher.Constraint("DistanceY", 0, 3, -1, 1, 8.0))
sketch11.addConstraint(Sketcher.Constraint("DistanceX", -1, 1, 0, 3, 86.5))
sketch11.setExpression("Constraints[4]", "Params.sketch11_diameter")
pocket7 = body.newObject("PartDesign::Pocket", "Pocket006")
pocket7.Profile = sketch11
pocket7.setExpression("Length", "Params.pocket7_length")
pocket7.Reversed = True

# Sketch on YZ plane
sketch12 = body.newObject("Sketcher::SketchObject", "Sketch011")
sketch12.AttachmentSupport = (doc.getObject("YZ_Plane"), [""])
sketch12.MapMode = "FlatFace"
sketch12.AttachmentOffset = App.Placement(Vector(0, 0, 107.9904), App.Rotation())
sketch12.addGeometry(Part.Circle(Vector(26, -34, 0), Vector(0, 0, 1), 8), False)
sketch12.addConstraint(Sketcher.Constraint("Diameter", 0, 15.6))
sketch12.addConstraint(Sketcher.Constraint("DistanceX", -1, 1, 0, 3, 25.5))
sketch12.addConstraint(Sketcher.Constraint("DistanceY", 0, 3, -1, 1, 34.1848))
sketch12.setExpression("Constraints[0]", "Params.sketch12_diameter")
pocket8 = body.newObject("PartDesign::Pocket", "Pocket007")
pocket8.Profile = sketch12
pocket8.setExpression("Length", "Params.pocket8_length")
pocket8.Reversed = True

doc.recompute()
